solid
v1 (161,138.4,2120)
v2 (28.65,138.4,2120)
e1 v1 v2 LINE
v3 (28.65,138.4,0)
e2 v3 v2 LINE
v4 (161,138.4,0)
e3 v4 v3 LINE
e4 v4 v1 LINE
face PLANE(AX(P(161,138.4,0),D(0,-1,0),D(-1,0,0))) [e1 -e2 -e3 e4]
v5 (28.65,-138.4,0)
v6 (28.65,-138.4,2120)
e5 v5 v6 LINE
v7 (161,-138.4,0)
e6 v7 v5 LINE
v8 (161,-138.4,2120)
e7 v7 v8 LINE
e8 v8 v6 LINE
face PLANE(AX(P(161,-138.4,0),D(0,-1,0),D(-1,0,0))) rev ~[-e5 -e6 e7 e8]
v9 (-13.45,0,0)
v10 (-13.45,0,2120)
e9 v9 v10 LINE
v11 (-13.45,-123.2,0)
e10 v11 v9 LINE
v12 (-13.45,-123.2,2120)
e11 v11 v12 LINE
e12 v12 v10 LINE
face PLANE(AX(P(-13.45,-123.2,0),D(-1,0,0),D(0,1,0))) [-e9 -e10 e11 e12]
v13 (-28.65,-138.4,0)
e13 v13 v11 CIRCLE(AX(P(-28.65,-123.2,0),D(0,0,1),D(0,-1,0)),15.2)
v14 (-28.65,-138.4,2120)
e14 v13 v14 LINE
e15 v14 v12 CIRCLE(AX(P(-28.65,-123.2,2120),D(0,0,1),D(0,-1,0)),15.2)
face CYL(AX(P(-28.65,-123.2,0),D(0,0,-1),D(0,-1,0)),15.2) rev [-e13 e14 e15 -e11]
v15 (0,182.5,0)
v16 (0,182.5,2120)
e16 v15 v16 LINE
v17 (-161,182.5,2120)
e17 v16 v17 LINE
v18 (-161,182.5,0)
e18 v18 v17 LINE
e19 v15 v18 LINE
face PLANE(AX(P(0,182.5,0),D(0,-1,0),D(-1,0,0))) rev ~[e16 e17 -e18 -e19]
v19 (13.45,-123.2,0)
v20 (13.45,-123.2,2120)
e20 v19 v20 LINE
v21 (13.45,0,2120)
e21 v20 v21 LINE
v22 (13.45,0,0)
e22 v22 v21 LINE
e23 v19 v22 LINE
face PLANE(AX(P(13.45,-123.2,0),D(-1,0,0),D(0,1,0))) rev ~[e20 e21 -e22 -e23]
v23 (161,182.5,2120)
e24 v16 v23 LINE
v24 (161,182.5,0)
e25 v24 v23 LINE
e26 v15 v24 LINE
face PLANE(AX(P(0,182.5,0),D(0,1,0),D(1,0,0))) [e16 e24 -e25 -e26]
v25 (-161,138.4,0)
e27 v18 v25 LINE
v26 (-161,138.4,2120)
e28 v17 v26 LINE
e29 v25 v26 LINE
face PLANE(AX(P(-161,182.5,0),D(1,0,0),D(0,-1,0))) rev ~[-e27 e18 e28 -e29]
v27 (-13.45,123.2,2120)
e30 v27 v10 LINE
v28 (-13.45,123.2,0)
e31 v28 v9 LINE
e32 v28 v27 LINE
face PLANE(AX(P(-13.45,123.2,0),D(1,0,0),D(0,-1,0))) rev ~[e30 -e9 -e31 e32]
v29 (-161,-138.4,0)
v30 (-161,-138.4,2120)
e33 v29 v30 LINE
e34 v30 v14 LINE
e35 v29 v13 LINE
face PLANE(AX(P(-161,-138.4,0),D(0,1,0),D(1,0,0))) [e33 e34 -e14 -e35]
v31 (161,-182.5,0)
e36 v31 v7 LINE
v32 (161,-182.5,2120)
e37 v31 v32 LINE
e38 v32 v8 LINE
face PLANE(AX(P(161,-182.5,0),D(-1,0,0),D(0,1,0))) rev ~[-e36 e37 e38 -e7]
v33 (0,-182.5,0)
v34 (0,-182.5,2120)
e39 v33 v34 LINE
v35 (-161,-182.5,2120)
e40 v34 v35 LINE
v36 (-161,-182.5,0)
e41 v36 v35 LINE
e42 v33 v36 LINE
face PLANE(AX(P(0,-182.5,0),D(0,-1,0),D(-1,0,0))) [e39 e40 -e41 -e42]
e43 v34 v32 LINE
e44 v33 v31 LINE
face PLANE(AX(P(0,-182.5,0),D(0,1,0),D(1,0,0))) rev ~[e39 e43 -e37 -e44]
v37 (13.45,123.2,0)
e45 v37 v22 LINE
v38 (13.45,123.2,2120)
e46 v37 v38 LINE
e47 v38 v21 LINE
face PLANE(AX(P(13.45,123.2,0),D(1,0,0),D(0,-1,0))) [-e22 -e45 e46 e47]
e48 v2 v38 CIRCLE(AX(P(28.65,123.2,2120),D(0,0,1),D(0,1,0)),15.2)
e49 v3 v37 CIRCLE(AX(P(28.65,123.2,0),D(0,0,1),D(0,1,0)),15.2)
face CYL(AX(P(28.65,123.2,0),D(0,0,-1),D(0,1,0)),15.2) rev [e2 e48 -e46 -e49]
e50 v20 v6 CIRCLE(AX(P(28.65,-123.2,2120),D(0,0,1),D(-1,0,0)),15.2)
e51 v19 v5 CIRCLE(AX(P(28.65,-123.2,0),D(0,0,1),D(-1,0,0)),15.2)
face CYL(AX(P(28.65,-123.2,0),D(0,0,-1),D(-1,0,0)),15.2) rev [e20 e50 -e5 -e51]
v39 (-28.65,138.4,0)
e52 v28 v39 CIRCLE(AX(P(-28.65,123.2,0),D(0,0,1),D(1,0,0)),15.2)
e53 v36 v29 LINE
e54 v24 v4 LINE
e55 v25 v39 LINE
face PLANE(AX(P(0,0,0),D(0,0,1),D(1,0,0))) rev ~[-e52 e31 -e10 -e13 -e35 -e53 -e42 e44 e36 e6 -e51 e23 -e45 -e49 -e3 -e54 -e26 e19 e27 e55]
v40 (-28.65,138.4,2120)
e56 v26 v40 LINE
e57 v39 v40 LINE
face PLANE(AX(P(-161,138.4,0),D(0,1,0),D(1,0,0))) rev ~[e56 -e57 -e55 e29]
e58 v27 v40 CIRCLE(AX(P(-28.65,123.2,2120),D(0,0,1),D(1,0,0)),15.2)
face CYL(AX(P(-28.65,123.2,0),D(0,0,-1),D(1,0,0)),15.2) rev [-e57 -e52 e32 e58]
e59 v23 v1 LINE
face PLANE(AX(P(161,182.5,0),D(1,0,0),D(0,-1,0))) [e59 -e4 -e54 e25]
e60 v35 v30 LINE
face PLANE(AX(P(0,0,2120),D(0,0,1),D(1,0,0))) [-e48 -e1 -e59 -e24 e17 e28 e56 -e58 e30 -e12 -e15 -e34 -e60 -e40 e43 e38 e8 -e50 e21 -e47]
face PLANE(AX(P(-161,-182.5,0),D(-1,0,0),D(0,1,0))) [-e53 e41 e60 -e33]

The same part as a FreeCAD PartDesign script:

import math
import FreeCAD as App
import Part
import Sketcher

V = App.Vector

doc = App.newDocument("Part")
body = doc.addObject("PartDesign::Body", "Body")

sketch1 = body.newObject("Sketcher::SketchObject", "Sketch")
sketch1.AttachmentSupport = (doc.getObject("XY_Plane"), [""])
sketch1.MapMode = "FlatFace"
sketch1.addGeometry([
    Part.LineSegment(V(-161, -138.4, 0), V(-161, -182.5, 0)),
    Part.LineSegment(V(-161, -182.5, 0), V(161, -182.5, 0)),
    Part.LineSegment(V(161, -182.5, 0), V(161, -138.4, 0)),
    Part.LineSegment(V(161, -138.4, 0), V(28.65, -138.4, 0)),
    Part.ArcOfCircle(Part.Circle(V(28.65, -123.2, 0), V(0, 0, 1), 15.2), math.radians(180), math.radians(270)),
    Part.LineSegment(V(13.45, -123.2, 0), V(13.45, 123.2, 0)),
    Part.ArcOfCircle(Part.Circle(V(28.65, 123.2, 0), V(0, 0, 1), 15.2), math.radians(90), math.radians(180)),
    Part.LineSegment(V(28.65, 138.4, 0), V(161, 138.4, 0)),
    Part.LineSegment(V(161, 138.4, 0), V(161, 182.5, 0)),
    Part.LineSegment(V(161, 182.5, 0), V(-161, 182.5, 0)),
    Part.LineSegment(V(-161, 182.5, 0), V(-161, 138.4, 0)),
    Part.LineSegment(V(-161, 138.4, 0), V(-28.65, 138.4, 0)),
    Part.ArcOfCircle(Part.Circle(V(-28.65, 123.2, 0), V(0, 0, 1), 15.2), math.radians(0), math.radians(90)),
    Part.LineSegment(V(-13.45, 123.2, 0), V(-13.45, -123.2, 0)),
    Part.ArcOfCircle(Part.Circle(V(-28.65, -123.2, 0), V(0, 0, 1), 15.2), math.radians(-90), math.radians(0)),
    Part.LineSegment(V(-28.65, -138.4, 0), V(-161, -138.4, 0)),
], False)
sketch1.addConstraint([
    Sketcher.Constraint("Coincident", 0, 2, 1, 1),
    Sketcher.Constraint("Coincident", 1, 2, 2, 1),
    Sketcher.Constraint("Coincident", 2, 2, 3, 1),
    Sketcher.Constraint("Tangent", 3, 2, 4, 2),
    Sketcher.Constraint("Tangent", 4, 1, 5, 1),
    Sketcher.Constraint("Tangent", 5, 2, 6, 2),
    Sketcher.Constraint("Tangent", 6, 1, 7, 1),
    Sketcher.Constraint("Coincident", 7, 2, 8, 1),
    Sketcher.Constraint("Coincident", 8, 2, 9, 1),
    Sketcher.Constraint("Coincident", 9, 2, 10, 1),
    Sketcher.Constraint("Coincident", 10, 2, 11, 1),
    Sketcher.Constraint("Tangent", 11, 2, 12, 2),
    Sketcher.Constraint("Tangent", 12, 1, 13, 1),
    Sketcher.Constraint("Tangent", 13, 2, 14, 2),
    Sketcher.Constraint("Tangent", 14, 1, 15, 1),
    Sketcher.Constraint("Coincident", 15, 2, 0, 1),
    Sketcher.Constraint("Vertical", 0),
    Sketcher.Constraint("Horizontal", 1),
    Sketcher.Constraint("Vertical", 2),
    Sketcher.Constraint("Horizontal", 3),
    Sketcher.Constraint("Vertical", 5),
    Sketcher.Constraint("Horizontal", 7),
    Sketcher.Constraint("Vertical", 8),
    Sketcher.Constraint("Horizontal", 9),
    Sketcher.Constraint("Vertical", 10),
    Sketcher.Constraint("Horizontal", 11),
    Sketcher.Constraint("Vertical", 13),
    Sketcher.Constraint("Horizontal", 15),
    Sketcher.Constraint("Equal", 4, 6),
    Sketcher.Constraint("Equal", 6, 12),
    Sketcher.Constraint("Equal", 12, 14),
    Sketcher.Constraint("Symmetric", 4, 3, 12, 3, -1, 1),
    Sketcher.Constraint("Symmetric", 0, 2, 8, 2, -1, 1),
    Sketcher.Constraint("Symmetric", 7, 2, 10, 2, -2),
    Sketcher.Constraint("Symmetric", 2, 2, 15, 2, -2),
    Sketcher.Constraint("Radius", 4, 15.2),
    Sketcher.Constraint("DistanceY", 0, 2, 0, 1, 44.1),
    Sketcher.Constraint("DistanceX", 0, 2, -1, 1, 161.0),
    Sketcher.Constraint("DistanceY", 0, 2, -1, 1, 182.5),
    Sketcher.Constraint("DistanceX", -1, 1, 4, 1, 13.45),
])
pad1 = body.newObject("PartDesign::Pad", "Pad")
pad1.Profile = sketch1
pad1.Length = 2120

doc.recompute()
